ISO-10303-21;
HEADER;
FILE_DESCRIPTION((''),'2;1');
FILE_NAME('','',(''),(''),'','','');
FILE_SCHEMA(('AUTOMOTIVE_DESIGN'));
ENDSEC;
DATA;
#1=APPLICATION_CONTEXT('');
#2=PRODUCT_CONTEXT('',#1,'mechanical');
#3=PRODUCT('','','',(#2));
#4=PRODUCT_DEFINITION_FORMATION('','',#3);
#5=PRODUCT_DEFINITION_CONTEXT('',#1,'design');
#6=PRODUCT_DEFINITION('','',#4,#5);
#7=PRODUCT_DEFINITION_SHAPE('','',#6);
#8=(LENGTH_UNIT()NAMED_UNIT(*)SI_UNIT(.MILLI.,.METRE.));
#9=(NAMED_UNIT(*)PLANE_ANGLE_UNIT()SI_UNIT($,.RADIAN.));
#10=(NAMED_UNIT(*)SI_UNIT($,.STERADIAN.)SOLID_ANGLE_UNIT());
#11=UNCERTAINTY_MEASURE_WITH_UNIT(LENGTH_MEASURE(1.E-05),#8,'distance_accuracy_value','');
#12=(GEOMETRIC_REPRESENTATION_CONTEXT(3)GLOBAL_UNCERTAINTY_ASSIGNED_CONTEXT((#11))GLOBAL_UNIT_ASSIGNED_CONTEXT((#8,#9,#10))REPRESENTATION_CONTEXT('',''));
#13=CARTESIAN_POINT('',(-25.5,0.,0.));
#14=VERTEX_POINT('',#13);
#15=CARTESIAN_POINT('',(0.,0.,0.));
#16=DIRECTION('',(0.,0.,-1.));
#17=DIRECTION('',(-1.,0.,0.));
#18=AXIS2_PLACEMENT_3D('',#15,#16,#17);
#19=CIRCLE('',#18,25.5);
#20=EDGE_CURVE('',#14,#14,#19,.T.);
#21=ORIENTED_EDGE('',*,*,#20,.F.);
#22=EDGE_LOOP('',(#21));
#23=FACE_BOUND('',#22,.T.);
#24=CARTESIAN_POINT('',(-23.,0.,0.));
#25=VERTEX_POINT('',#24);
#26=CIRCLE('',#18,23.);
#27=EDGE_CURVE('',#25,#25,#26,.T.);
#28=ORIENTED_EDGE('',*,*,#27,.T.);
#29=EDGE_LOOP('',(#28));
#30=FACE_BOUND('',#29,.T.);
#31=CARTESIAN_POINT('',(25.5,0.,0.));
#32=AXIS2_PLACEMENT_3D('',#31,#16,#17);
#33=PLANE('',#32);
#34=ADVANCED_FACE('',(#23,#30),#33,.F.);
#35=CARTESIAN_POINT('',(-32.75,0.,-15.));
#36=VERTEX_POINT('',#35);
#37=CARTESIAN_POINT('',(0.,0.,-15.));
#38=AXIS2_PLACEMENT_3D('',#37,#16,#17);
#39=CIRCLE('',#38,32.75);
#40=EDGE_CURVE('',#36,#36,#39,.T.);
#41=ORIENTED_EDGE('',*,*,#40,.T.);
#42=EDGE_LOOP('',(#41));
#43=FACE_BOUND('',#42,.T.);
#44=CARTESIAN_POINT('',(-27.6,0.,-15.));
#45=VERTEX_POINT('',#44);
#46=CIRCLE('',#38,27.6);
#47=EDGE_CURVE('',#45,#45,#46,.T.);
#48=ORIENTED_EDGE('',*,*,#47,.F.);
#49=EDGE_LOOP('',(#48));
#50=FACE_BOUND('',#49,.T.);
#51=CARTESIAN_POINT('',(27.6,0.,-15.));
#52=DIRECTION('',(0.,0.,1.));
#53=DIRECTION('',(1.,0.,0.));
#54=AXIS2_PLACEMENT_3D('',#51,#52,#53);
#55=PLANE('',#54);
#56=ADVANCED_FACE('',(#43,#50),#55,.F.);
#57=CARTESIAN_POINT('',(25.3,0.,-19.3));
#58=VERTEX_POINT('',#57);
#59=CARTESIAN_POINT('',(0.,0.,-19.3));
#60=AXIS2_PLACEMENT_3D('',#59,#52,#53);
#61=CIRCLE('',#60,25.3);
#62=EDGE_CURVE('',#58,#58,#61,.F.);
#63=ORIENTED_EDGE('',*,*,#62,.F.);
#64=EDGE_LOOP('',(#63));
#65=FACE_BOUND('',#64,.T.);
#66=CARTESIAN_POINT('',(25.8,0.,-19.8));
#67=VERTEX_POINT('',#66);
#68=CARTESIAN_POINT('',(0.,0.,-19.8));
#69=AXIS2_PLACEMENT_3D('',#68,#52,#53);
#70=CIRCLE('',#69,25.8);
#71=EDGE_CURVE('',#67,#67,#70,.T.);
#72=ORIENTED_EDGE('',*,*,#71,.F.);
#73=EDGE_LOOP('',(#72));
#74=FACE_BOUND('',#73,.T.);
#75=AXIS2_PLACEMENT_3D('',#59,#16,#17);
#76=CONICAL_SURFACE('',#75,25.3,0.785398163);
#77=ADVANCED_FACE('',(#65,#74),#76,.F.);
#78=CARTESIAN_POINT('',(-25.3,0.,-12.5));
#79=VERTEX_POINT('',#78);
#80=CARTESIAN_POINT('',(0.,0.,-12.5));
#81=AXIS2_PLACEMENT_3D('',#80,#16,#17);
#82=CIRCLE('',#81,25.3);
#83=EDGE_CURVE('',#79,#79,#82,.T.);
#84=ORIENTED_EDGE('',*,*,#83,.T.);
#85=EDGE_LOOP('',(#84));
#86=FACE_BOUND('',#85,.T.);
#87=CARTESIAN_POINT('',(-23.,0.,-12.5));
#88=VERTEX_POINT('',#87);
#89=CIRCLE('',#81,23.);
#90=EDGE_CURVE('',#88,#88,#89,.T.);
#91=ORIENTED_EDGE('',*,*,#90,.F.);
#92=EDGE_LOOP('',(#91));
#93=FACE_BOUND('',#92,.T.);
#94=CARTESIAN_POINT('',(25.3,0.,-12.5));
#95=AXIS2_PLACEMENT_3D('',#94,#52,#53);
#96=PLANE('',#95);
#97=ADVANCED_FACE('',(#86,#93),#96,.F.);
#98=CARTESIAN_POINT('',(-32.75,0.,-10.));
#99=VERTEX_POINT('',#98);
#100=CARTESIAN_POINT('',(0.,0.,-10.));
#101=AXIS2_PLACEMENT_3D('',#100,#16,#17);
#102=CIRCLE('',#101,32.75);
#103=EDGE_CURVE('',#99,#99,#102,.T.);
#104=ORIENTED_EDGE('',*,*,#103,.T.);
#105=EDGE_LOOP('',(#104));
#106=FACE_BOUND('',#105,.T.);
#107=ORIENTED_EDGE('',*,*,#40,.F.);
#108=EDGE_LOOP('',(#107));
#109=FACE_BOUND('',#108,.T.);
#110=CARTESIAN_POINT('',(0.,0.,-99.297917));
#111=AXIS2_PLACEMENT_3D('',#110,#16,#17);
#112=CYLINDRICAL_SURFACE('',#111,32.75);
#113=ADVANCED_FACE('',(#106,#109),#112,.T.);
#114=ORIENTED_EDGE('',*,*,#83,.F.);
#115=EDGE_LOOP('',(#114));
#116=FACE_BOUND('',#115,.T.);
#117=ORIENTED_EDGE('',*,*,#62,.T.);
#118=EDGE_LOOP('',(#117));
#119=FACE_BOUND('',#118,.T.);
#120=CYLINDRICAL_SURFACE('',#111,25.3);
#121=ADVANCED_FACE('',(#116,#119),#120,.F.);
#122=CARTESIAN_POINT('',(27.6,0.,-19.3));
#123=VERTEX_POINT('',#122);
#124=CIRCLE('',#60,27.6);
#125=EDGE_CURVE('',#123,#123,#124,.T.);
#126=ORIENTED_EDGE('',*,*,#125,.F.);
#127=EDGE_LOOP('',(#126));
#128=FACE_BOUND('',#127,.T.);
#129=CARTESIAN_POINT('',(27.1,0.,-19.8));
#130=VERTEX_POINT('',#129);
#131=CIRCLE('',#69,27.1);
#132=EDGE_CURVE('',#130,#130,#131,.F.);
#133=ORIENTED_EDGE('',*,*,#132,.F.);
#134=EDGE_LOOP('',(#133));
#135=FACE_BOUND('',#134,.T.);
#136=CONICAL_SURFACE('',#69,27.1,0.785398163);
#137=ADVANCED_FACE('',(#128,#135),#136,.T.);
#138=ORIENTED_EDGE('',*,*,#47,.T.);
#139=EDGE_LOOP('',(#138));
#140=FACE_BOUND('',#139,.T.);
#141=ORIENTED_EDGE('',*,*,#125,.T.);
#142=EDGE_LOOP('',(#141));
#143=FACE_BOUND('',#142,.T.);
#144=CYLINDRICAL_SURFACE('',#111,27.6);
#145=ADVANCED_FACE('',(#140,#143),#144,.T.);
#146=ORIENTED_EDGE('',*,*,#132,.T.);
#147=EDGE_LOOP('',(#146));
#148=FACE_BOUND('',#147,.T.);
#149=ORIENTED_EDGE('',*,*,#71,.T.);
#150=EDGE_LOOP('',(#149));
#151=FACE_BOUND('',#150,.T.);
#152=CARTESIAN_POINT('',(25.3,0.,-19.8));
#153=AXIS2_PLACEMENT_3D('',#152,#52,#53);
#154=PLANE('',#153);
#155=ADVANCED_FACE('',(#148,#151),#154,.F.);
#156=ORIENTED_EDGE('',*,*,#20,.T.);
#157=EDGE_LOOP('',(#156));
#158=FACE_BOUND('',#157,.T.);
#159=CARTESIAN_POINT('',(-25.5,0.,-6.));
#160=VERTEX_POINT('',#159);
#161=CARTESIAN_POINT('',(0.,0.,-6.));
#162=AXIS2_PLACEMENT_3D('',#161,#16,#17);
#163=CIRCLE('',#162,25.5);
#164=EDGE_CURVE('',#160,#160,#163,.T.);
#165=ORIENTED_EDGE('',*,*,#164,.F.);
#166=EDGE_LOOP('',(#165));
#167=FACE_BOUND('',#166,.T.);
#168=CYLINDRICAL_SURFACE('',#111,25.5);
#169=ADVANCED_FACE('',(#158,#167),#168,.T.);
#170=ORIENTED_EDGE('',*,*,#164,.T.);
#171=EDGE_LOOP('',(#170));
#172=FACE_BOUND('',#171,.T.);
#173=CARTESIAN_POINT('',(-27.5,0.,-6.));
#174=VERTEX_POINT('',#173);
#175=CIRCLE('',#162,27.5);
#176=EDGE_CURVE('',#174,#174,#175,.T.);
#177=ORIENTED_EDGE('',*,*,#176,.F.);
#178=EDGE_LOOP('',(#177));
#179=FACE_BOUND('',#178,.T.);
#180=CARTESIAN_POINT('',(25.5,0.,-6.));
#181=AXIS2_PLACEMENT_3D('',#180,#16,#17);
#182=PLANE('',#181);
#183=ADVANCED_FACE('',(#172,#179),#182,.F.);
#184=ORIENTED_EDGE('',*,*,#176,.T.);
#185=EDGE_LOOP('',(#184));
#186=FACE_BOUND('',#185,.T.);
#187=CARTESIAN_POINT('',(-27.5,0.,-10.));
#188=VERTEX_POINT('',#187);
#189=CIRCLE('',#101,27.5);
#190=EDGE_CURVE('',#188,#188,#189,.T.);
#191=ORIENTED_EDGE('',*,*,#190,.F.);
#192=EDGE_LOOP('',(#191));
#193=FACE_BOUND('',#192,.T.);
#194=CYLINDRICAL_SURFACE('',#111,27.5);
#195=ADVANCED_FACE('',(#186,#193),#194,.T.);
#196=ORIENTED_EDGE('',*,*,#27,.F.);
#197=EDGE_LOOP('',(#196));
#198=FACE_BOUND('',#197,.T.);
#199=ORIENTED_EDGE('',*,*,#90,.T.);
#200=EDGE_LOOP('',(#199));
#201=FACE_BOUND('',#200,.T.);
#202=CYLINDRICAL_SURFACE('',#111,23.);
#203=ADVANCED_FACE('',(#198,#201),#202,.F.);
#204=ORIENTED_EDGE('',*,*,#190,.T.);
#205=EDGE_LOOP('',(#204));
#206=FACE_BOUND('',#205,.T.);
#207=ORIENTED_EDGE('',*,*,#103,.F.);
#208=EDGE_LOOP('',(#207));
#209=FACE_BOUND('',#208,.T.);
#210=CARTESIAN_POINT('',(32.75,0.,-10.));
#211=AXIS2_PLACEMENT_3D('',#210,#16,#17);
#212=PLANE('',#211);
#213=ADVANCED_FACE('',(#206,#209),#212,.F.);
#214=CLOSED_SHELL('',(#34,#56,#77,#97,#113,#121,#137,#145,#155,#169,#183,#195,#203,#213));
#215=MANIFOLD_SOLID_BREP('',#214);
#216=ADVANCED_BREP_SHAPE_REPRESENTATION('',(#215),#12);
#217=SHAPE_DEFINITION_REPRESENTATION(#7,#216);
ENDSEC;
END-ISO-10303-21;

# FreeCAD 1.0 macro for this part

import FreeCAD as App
import Part
import Sketcher

V = App.Vector


def edges_at(feature, points):
    """Names of the edges that pass closest to the given points."""
    edges = feature.Shape.Edges
    near = lambda p: min(range(len(edges)), key=lambda i: edges[i].distToShape(Part.Vertex(*p))[0])
    return sorted({f"Edge{near(p) + 1}" for p in points})


def add_polygon(sketch, points):
    """Adds a closed chain of lines whose ends are joined by coincident constraints."""
    first, n = sketch.GeometryCount, len(points)
    for a, b in zip(points, points[1:] + points[:1]):
        sketch.addGeometry(Part.LineSegment(App.Vector(*a, 0), App.Vector(*b, 0)), False)
    for i in range(n):
        sketch.addConstraint(Sketcher.Constraint("Coincident", first + i, 2, first + (i + 1) % n, 1))

doc = App.newDocument("Part")
body = doc.addObject("PartDesign::Body", "Body")

sketch1 = body.newObject("Sketcher::SketchObject", "Sketch")
sketch1.AttachmentSupport = (doc.getObject("XZ_Plane"), [""])
sketch1.MapMode = "FlatFace"
add_polygon(sketch1, [(27.6, -19.8), (25.3, -19.8), (25.3, -12.5), (23, -12.5), (23, 0), (25.5, 0), (25.5, -6), (27.5, -6), (27.5, -10), (32.75, -10), (32.75, -15), (27.6, -15)])
sketch1.addConstraint([
    Sketcher.Constraint("Horizontal", 0),
    Sketcher.Constraint("Vertical", 1),
    Sketcher.Constraint("Horizontal", 2),
    Sketcher.Constraint("Vertical", 3),
    Sketcher.Constraint("Horizontal", 4),
    Sketcher.Constraint("Vertical", 5),
    Sketcher.Constraint("Horizontal", 6),
    Sketcher.Constraint("Vertical", 7),
    Sketcher.Constraint("Horizontal", 8),
    Sketcher.Constraint("Vertical", 9),
    Sketcher.Constraint("Horizontal", 10),
    Sketcher.Constraint("Vertical", 11),
    Sketcher.Constraint("PointOnObject", 3, 2, -1),
    Sketcher.Constraint("Equal", 0, 2),
    Sketcher.Constraint("DistanceX", 6, 1, 6, 2, 2.0),
    Sketcher.Constraint("DistanceY", 5, 2, 5, 1, 6.0),
    Sketcher.Constraint("DistanceY", 7, 2, 7, 1, 4.0),
    Sketcher.Constraint("DistanceY", 9, 2, 9, 1, 5.0),
    Sketcher.Constraint("DistanceX", 0, 2, 0, 1, 2.3),
    Sketcher.Constraint("DistanceX", 4, 1, 4, 2, 2.5),
    Sketcher.Constraint("DistanceY", 1, 1, 1, 2, 7.3),
    Sketcher.Constraint("DistanceY", 3, 1, 3, 2, 12.5),
    Sketcher.Constraint("DistanceX", -1, 1, 2, 2, 23.0),
    Sketcher.Constraint("DistanceX", 8, 1, 8, 2, 5.25),
])
revolution = body.newObject("PartDesign::Revolution", "Revolution")
revolution.Profile = sketch1
revolution.ReferenceAxis = (sketch1, ["V_Axis"])
revolution.Angle = 360
doc.recompute()

chamfer = body.newObject("PartDesign::Chamfer", "Chamfer")
chamfer.Base = (revolution, edges_at(revolution, [(27.6, 0, -19.8), (25.3, 0, -19.8)]))
chamfer.Size = 0.5

doc.recompute()
